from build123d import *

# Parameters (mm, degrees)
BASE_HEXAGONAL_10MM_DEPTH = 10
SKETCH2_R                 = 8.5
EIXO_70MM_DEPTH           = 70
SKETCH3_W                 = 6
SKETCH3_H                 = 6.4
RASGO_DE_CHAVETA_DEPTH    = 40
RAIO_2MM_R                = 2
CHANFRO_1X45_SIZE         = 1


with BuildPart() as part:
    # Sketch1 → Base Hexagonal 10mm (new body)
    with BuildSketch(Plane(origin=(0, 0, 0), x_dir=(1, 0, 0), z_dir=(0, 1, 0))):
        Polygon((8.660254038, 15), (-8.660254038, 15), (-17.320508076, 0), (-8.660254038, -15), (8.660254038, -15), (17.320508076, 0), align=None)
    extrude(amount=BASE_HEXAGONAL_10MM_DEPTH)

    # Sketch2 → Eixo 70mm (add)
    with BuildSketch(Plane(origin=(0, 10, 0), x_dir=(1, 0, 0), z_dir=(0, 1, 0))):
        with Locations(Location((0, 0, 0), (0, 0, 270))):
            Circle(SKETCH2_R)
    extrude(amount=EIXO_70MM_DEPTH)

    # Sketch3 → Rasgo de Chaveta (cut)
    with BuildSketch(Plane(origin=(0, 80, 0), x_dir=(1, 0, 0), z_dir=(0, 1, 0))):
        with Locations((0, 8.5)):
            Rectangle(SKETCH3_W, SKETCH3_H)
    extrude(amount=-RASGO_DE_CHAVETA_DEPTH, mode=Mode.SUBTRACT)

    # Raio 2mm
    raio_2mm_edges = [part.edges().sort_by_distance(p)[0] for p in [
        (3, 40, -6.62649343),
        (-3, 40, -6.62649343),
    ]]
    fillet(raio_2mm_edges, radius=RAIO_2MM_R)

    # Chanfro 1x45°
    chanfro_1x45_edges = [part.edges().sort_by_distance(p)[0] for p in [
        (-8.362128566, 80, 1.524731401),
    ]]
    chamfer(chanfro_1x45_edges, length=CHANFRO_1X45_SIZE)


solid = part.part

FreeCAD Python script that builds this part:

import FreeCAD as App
import Part
import Sketcher
Q = App.Units.Quantity


def edges_at(feature, points):
    """Names of the edges that pass closest to the given points."""
    edges = feature.Shape.Edges
    near = lambda p: min(range(len(edges)), key=lambda i: edges[i].distToShape(Part.Vertex(*p))[0])
    return sorted({f"Edge{near(p) + 1}" for p in points})


def add_polygon(sketch, points):
    """Adds a closed chain of lines whose ends are joined by coincident constraints."""
    first, n = sketch.GeometryCount, len(points)
    for a, b in zip(points, points[1:] + points[:1]):
        sketch.addGeometry(Part.LineSegment(App.Vector(*a, 0), App.Vector(*b, 0)), False)
    for i in range(n):
        sketch.addConstraint(Sketcher.Constraint("Coincident", first + i, 2, first + (i + 1) % n, 1))

doc = App.newDocument("Part")
body = doc.addObject("PartDesign::Body", "Body")

sketch1 = body.newObject("Sketcher::SketchObject", "Sketch")
sketch1.AttachmentSupport = (doc.getObject("XZ_Plane"), [""])
sketch1.MapMode = "FlatFace"
add_polygon(sketch1, [(8.660254, -15), (-8.660254, -15), (-17.320508, 0), (-8.660254, 15), (8.660254, 15), (17.320508, 0)])
sketch1.addConstraint([
    Sketcher.Constraint("Horizontal", 0),
    Sketcher.Constraint("Horizontal", 3),
    Sketcher.Constraint("Symmetric", 0, 2, 3, 2, -1, 1),
    Sketcher.Constraint("Symmetric", 1, 2, 4, 2, -1, 1),
    Sketcher.Constraint("PointOnObject", 1, 2, -1),
    Sketcher.Constraint("Parallel", 2, 5),
    Sketcher.Constraint("Vertical", 0, 2, 2, 2),
    Sketcher.Constraint("Angle", 1, Q("120 deg")),
    Sketcher.Constraint("DistanceY", 0, 2, -1, 1, Q("15 mm")),
    Sketcher.Constraint("DistanceX", 0, 2, 0, 1, Q("17.320508 mm")),
])
pad1 = body.newObject("PartDesign::Pad", "Pad")
pad1.Profile = sketch1
pad1.Length = 10
pad1.Reversed = True

sketch2 = body.newObject("Sketcher::SketchObject", "Sketch001")
sketch2.AttachmentSupport = (doc.getObject("XZ_Plane"), [""])
sketch2.MapMode = "FlatFace"
sketch2.AttachmentOffset = App.Placement(App.Vector(0, 0, -10), App.Rotation())
sketch2.addGeometry(Part.Circle(App.Vector(0, 0, 0), App.Vector(0, 0, 1), 8.5), False)
sketch2.addConstraint([
    Sketcher.Constraint("Coincident", 0, 3, -1, 1),
    Sketcher.Constraint("Diameter", 0, Q("17 mm")),
])
pad2 = body.newObject("PartDesign::Pad", "Pad001")
pad2.Profile = sketch2
pad2.Length = 70
pad2.Reversed = True

sketch3 = body.newObject("Sketcher::SketchObject", "Sketch002")
sketch3.AttachmentSupport = (doc.getObject("XZ_Plane"), [""])
sketch3.MapMode = "FlatFace"
sketch3.AttachmentOffset = App.Placement(App.Vector(0, 0, -80), App.Rotation())
add_polygon(sketch3, [(-3, -11.7), (-3, -5.3), (3, -5.3), (3, -11.7)])
sketch3.addConstraint([
    Sketcher.Constraint("Vertical", 0),
    Sketcher.Constraint("Horizontal", 1),
    Sketcher.Constraint("Vertical", 2),
    Sketcher.Constraint("Horizontal", 3),
    Sketcher.Constraint("DistanceX", 1, 1, 1, 2, Q("6 mm")),
    Sketcher.Constraint("DistanceY", 0, 1, 0, 2, Q("6.4 mm")),
    Sketcher.Constraint("DistanceX", 0, 2, -1, 1, Q("3 mm")),
    Sketcher.Constraint("DistanceY", 0, 2, -1, 1, Q("5.3 mm")),
])
pocket1 = body.newObject("PartDesign::Pocket", "Pocket")
pocket1.Profile = sketch3
pocket1.Length = 40
pocket1.Reversed = True
doc.recompute()

fillet = body.newObject("PartDesign::Fillet", "Fillet")
fillet.Base = (pocket1, edges_at(pocket1, [(3, 40, -6.626), (-3, 40, -6.626)]))
fillet.Radius = 2
doc.recompute()

chamfer = body.newObject("PartDesign::Chamfer", "Chamfer")
chamfer.Base = (fillet, edges_at(fillet, [(-8.362, 80, 1.525)]))
chamfer.Size = 1

doc.recompute()
